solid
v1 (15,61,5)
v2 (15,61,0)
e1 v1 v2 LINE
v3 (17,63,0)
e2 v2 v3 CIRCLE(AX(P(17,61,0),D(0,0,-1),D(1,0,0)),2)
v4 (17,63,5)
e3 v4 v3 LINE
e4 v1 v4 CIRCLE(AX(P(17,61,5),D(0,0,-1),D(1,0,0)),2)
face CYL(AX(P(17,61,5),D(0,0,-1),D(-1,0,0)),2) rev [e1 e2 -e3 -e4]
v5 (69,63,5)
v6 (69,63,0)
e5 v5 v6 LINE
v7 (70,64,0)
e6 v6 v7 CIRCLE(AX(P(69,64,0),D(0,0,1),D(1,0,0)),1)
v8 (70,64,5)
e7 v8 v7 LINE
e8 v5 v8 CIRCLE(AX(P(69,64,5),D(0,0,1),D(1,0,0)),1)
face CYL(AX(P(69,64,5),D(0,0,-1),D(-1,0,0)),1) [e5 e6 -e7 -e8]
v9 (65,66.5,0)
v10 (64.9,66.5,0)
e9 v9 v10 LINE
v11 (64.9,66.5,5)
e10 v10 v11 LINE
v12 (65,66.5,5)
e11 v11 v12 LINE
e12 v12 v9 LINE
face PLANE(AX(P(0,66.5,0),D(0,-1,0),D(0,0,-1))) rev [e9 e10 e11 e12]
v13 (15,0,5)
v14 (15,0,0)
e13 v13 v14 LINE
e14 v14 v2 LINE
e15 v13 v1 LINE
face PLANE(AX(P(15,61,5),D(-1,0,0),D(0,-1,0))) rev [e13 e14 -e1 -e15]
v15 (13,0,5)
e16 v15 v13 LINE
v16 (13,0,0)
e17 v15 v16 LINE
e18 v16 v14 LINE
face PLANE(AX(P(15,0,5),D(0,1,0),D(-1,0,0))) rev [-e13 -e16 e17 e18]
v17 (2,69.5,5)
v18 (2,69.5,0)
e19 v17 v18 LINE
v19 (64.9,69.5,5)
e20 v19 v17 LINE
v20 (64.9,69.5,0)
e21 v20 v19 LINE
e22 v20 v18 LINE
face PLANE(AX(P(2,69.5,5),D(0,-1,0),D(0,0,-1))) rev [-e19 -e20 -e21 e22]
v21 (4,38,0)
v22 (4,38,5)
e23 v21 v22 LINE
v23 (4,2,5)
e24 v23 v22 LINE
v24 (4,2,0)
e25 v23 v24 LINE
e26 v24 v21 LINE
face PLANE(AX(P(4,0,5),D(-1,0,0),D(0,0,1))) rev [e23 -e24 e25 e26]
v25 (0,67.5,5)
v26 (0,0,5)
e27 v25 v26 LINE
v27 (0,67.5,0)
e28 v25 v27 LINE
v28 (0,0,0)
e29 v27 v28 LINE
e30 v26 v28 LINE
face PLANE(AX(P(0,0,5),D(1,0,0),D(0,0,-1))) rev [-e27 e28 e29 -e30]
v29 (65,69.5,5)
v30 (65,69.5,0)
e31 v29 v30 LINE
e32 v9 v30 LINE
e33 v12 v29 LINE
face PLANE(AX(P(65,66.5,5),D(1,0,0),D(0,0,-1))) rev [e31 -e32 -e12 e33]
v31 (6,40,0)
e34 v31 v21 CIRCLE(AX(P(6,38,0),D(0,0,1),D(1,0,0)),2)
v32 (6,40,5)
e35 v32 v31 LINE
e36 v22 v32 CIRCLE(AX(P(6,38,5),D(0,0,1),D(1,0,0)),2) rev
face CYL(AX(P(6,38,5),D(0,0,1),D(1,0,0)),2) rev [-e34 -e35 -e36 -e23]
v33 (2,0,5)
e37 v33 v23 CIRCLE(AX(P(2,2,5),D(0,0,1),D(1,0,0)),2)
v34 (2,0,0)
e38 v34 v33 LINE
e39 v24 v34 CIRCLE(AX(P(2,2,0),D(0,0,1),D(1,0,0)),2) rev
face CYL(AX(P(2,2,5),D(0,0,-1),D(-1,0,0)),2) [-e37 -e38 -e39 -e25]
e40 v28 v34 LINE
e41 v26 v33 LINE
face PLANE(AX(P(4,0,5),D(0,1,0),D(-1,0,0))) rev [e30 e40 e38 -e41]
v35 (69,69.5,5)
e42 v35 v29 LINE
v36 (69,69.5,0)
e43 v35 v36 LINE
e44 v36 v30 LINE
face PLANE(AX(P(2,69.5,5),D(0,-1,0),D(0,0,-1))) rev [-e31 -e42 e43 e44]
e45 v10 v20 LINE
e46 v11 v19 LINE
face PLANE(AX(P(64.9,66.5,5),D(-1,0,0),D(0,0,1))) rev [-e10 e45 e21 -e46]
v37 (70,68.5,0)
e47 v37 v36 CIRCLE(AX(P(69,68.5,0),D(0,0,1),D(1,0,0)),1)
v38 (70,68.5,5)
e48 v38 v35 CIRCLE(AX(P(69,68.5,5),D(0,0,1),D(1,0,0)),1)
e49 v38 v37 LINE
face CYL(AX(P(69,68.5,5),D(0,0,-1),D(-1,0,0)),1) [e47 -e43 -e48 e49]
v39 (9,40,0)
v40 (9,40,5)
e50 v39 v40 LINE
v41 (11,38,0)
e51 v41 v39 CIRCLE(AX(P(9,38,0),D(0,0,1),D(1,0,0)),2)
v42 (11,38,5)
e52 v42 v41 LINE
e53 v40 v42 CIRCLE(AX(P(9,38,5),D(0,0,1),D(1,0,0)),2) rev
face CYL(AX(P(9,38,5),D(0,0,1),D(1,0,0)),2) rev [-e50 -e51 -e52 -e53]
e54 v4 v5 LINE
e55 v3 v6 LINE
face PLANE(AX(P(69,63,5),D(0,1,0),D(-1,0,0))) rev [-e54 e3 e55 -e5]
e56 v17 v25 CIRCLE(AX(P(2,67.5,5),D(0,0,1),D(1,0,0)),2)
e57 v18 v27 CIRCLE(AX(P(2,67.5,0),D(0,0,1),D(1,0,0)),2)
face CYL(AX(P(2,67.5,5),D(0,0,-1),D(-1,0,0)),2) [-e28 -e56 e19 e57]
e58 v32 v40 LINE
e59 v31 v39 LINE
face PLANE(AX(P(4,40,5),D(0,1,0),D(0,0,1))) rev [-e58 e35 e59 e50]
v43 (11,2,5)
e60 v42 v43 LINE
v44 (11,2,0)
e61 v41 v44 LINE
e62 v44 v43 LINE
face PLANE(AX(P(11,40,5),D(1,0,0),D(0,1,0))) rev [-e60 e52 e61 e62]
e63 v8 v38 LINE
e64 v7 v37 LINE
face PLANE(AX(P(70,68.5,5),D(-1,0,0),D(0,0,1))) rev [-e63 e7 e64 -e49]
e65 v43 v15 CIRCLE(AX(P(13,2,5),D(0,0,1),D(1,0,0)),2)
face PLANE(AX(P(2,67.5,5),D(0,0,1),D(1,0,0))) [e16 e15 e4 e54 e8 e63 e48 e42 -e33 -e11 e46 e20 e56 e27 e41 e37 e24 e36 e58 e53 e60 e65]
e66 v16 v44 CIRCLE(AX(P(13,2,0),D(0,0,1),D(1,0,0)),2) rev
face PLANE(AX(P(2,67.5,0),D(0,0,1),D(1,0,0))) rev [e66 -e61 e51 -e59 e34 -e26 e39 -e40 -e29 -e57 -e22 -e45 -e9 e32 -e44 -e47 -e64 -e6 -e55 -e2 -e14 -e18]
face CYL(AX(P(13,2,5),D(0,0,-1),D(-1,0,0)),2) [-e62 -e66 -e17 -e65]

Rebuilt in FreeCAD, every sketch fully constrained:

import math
import FreeCAD as App
import Part
import Sketcher
Q = App.Units.Quantity


def edges_at(feature, points):
    """Names of the edges that pass closest to the given points."""
    edges = feature.Shape.Edges
    near = lambda p: min(range(len(edges)), key=lambda i: edges[i].distToShape(Part.Vertex(*p))[0])
    return sorted({f"Edge{near(p) + 1}" for p in points})

doc = App.newDocument("Part")
body = doc.addObject("PartDesign::Body", "Body")

# Sketch on XY plane
sketch1 = doc.addObject("Sketcher::SketchObject", "Sketch")
body.addObject(sketch1)
sketch1.AttachmentSupport = (doc.XY_Plane, [""])
sketch1.MapMode = "FlatFace"
sketch1.addGeometry([
    Part.LineSegment(App.Vector(0, 67.5, 0), App.Vector(0, 0, 0)),  # 0
    Part.LineSegment(App.Vector(0, 0, 0), App.Vector(4, 0, 0)),  # 1
    Part.LineSegment(App.Vector(4, 0, 0), App.Vector(4, 40, 0)),  # 2
    Part.LineSegment(App.Vector(4, 40, 0), App.Vector(11, 40, 0)),  # 3
    Part.LineSegment(App.Vector(11, 40, 0), App.Vector(11, 0, 0)),  # 4
    Part.LineSegment(App.Vector(11, 0, 0), App.Vector(15, 0, 0)),  # 5
    Part.LineSegment(App.Vector(15, 0, 0), App.Vector(15, 61, 0)),  # 6
    Part.ArcOfCircle(Part.Circle(App.Vector(17, 61, 0), App.Vector(0, 0, 1), 2), math.radians(90), math.radians(180)),  # 7
    Part.LineSegment(App.Vector(17, 63, 0), App.Vector(69, 63, 0)),  # 8
    Part.ArcOfCircle(Part.Circle(App.Vector(69, 64, 0), App.Vector(0, 0, 1), 1), math.radians(-90), math.radians(0)),  # 9
    Part.LineSegment(App.Vector(70, 64, 0), App.Vector(70, 68.5, 0)),  # 10
    Part.ArcOfCircle(Part.Circle(App.Vector(69, 68.5, 0), App.Vector(0, 0, 1), 1), math.radians(0), math.radians(90)),  # 11
    Part.LineSegment(App.Vector(69, 69.5, 0), App.Vector(2, 69.5, 0)),  # 12
    Part.ArcOfCircle(Part.Circle(App.Vector(2, 67.5, 0), App.Vector(0, 0, 1), 2), math.radians(90), math.radians(180)),  # 13
], False)
sketch1.addConstraint([
    Sketcher.Constraint("Coincident", 0, 2, 1, 1),
    Sketcher.Constraint("Coincident", 1, 2, 2, 1),
    Sketcher.Constraint("Coincident", 2, 2, 3, 1),
    Sketcher.Constraint("Coincident", 3, 2, 4, 1),
    Sketcher.Constraint("Coincident", 4, 2, 5, 1),
    Sketcher.Constraint("Coincident", 5, 2, 6, 1),
    Sketcher.Constraint("Tangent", 6, 2, 7, 2),
    Sketcher.Constraint("Tangent", 7, 1, 8, 1),
    Sketcher.Constraint("Tangent", 8, 2, 9, 1),
    Sketcher.Constraint("Tangent", 9, 2, 10, 1),
    Sketcher.Constraint("Tangent", 10, 2, 11, 1),
    Sketcher.Constraint("Tangent", 11, 2, 12, 1),
    Sketcher.Constraint("Tangent", 12, 2, 13, 1),
    Sketcher.Constraint("Tangent", 13, 2, 0, 1),
    Sketcher.Constraint("Vertical", 0),
    Sketcher.Constraint("Horizontal", 1),
    Sketcher.Constraint("Vertical", 2),
    Sketcher.Constraint("Horizontal", 3),
    Sketcher.Constraint("Vertical", 4),
    Sketcher.Constraint("Horizontal", 5),
    Sketcher.Constraint("Vertical", 6),
    Sketcher.Constraint("Horizontal", 8),
    Sketcher.Constraint("Vertical", 10),
    Sketcher.Constraint("Horizontal", 12),
    Sketcher.Constraint("Coincident", 0, 2, -1, 1),
    Sketcher.Constraint("Equal", 9, 11),
    Sketcher.Constraint("Equal", 7, 13),
    Sketcher.Constraint("PointOnObject", 4, 2, -1),
    Sketcher.Constraint("Equal", 1, 5),
    Sketcher.Constraint("Radius", 7, Q("2 mm")),
    Sketcher.Constraint("Radius", 9, Q("1 mm")),
    Sketcher.Constraint("DistanceX", 1, 1, 1, 2, Q("4 mm")),
    Sketcher.Constraint("DistanceX", 3, 1, 3, 2, Q("7 mm")),
    Sketcher.Constraint("DistanceX", 8, 1, 8, 2, Q("52 mm")),
    Sketcher.Constraint("DistanceY", 2, 1, 2, 2, Q("40 mm")),
    Sketcher.Constraint("DistanceY", 6, 1, 6, 2, Q("61 mm")),
    Sketcher.Constraint("DistanceY", 0, 2, 0, 1, Q("67.5 mm")),
])
pad1 = doc.addObject("PartDesign::Pad", "Pad")
body.addObject(pad1)
pad1.Profile = sketch1
pad1.Length = 5

# Sketch on XZ plane
sketch2 = doc.addObject("Sketcher::SketchObject", "Sketch001")
body.addObject(sketch2)
sketch2.AttachmentSupport = (doc.XZ_Plane, [""])
sketch2.MapMode = "FlatFace"
sketch2.AttachmentOffset = App.Placement(App.Vector(0, 0, -69.5), App.Rotation())
sketch2.addGeometry([
    Part.LineSegment(App.Vector(64.9, 0, 0), App.Vector(64.9, 5, 0)),
    Part.LineSegment(App.Vector(64.9, 5, 0), App.Vector(65, 5, 0)),
    Part.LineSegment(App.Vector(65, 5, 0), App.Vector(65, 0, 0)),
    Part.LineSegment(App.Vector(65, 0, 0), App.Vector(64.9, 0, 0)),
], False)
sketch2.addConstraint([
    Sketcher.Constraint("Coincident", 0, 2, 1, 1),
    Sketcher.Constraint("Coincident", 1, 2, 2, 1),
    Sketcher.Constraint("Coincident", 2, 2, 3, 1),
    Sketcher.Constraint("Coincident", 3, 2, 0, 1),
    Sketcher.Constraint("Vertical", 0),
    Sketcher.Constraint("Horizontal", 1),
    Sketcher.Constraint("Vertical", 2),
    Sketcher.Constraint("Horizontal", 3),
    Sketcher.Constraint("PointOnObject", 2, 2, -1),
    Sketcher.Constraint("DistanceY", 0, 1, 0, 2, Q("5 mm")),
    Sketcher.Constraint("DistanceX", 1, 1, 1, 2, Q("0.1 mm")),
    Sketcher.Constraint("DistanceX", -1, 1, 1, 2, Q("65 mm")),
])
pocket1 = doc.addObject("PartDesign::Pocket", "Pocket")
body.addObject(pocket1)
pocket1.Profile = sketch2
pocket1.Length = 3
pocket1.Reversed = True
doc.recompute()

fillet = doc.addObject("PartDesign::Fillet", "Fillet")
body.addObject(fillet)
fillet.Base = (pocket1, edges_at(pocket1, [
    (11, 0, 2.5),
    (11, 40, 2.5),
    (4, 40, 2.5),
    (4, 0, 2.5),
]))
fillet.Radius = 2

doc.recompute()
